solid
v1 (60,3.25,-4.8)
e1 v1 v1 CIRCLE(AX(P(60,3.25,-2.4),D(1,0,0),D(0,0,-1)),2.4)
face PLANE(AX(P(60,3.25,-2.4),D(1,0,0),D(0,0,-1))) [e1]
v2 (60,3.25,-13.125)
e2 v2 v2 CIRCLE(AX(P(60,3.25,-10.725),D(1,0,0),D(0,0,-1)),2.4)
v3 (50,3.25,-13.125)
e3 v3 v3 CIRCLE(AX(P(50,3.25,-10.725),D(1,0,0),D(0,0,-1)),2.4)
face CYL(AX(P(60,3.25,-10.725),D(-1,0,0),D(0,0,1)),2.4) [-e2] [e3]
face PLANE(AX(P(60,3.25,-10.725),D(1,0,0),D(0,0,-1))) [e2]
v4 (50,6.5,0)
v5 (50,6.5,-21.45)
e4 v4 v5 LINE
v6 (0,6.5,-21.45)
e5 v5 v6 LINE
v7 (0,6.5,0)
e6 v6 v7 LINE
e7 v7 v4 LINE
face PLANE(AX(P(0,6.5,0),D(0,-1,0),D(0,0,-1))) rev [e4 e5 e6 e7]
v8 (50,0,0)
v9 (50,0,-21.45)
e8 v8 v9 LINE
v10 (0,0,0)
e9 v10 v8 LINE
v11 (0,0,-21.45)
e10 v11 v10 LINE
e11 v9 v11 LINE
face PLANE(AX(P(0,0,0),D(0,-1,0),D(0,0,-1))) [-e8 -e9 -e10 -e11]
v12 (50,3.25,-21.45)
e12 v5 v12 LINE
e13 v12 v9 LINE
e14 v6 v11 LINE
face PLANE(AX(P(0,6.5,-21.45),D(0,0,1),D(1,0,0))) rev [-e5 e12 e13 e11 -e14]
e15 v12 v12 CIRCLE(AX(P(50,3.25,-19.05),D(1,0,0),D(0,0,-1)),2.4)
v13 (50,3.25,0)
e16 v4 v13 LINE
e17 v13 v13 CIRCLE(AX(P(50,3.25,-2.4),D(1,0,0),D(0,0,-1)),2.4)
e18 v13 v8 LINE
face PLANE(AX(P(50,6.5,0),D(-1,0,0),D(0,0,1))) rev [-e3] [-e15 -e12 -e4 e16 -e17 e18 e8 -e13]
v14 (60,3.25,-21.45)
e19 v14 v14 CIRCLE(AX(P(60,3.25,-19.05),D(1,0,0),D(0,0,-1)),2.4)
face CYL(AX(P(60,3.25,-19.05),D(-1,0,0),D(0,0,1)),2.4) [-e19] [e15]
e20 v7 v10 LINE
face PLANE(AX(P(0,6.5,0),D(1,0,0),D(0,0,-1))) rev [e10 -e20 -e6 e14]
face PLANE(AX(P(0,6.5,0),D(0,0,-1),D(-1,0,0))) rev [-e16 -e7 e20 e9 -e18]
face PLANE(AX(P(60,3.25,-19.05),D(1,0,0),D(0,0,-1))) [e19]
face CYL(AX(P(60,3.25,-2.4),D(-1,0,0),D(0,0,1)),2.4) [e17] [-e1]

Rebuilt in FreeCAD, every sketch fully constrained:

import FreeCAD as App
import Part
import Sketcher

V = App.Vector


def add_polygon(sketch, points):
    """Adds a closed chain of lines whose ends are joined by coincident constraints."""
    first, n = sketch.GeometryCount, len(points)
    for a, b in zip(points, points[1:] + points[:1]):
        sketch.addGeometry(Part.LineSegment(App.Vector(*a, 0), App.Vector(*b, 0)), False)
    for i in range(n):
        sketch.addConstraint(Sketcher.Constraint("Coincident", first + i, 2, first + (i + 1) % n, 1))

doc = App.newDocument("Part")
body = doc.addObject("PartDesign::Body", "Body")

sketch1 = body.newObject("Sketcher::SketchObject", "Sketch")
sketch1.AttachmentSupport = (doc.getObject("XZ_Plane"), [""])
sketch1.MapMode = "FlatFace"
add_polygon(sketch1, [(0, -21), (0, 0), (50, 0), (50, -21)])
sketch1.addConstraint(Sketcher.Constraint("Vertical", 0))
sketch1.addConstraint(Sketcher.Constraint("Horizontal", 1))
sketch1.addConstraint(Sketcher.Constraint("Vertical", 2))
sketch1.addConstraint(Sketcher.Constraint("Horizontal", 3))
sketch1.addConstraint(Sketcher.Constraint("Coincident", 0, 2, -1, 1))
sketch1.addConstraint(Sketcher.Constraint("DistanceX", 1, 1, 1, 2, 50.0))
sketch1.addConstraint(Sketcher.Constraint("DistanceY", 0, 1, 0, 2, 21.45))
pad1 = body.newObject("PartDesign::Pad", "Pad")
pad1.Profile = sketch1
pad1.Length = 6.5
pad1.Reversed = True

sketch2 = body.newObject("Sketcher::SketchObject", "Sketch001")
sketch2.AttachmentSupport = (doc.getObject("YZ_Plane"), [""])
sketch2.MapMode = "FlatFace"
sketch2.AttachmentOffset = App.Placement(V(0, 0, 50), App.Rotation())
sketch2.addGeometry(Part.Circle(V(3.2, -10.7, 0), V(0, 0, 1), 2.4), False)
sketch2.addGeometry(Part.Circle(V(3.2, -2.4, 0), V(0, 0, 1), 2.4), False)
sketch2.addGeometry(Part.Circle(V(3.2, -19.1, 0), V(0, 0, 1), 2.4), False)
sketch2.addConstraint(Sketcher.Constraint("Equal", 0, 1))
sketch2.addConstraint(Sketcher.Constraint("Equal", 1, 2))
sketch2.addConstraint(Sketcher.Constraint("Vertical", 0, 3, 1, 3))
sketch2.addConstraint(Sketcher.Constraint("Vertical", 1, 3, 2, 3))
sketch2.addConstraint(Sketcher.Constraint("Diameter", 0, 4.8))
sketch2.addConstraint(Sketcher.Constraint("DistanceY", 1, 3, -1, 1, 2.4))
sketch2.addConstraint(Sketcher.Constraint("DistanceX", -1, 1, 0, 3, 3.25))
sketch2.addConstraint(Sketcher.Constraint("DistanceY", 2, 3, -1, 1, 19.05))
sketch2.addConstraint(Sketcher.Constraint("DistanceY", 0, 3, -1, 1, 10.725))
pad2 = body.newObject("PartDesign::Pad", "Pad001")
pad2.Profile = sketch2
pad2.Length = 10

doc.recompute()
